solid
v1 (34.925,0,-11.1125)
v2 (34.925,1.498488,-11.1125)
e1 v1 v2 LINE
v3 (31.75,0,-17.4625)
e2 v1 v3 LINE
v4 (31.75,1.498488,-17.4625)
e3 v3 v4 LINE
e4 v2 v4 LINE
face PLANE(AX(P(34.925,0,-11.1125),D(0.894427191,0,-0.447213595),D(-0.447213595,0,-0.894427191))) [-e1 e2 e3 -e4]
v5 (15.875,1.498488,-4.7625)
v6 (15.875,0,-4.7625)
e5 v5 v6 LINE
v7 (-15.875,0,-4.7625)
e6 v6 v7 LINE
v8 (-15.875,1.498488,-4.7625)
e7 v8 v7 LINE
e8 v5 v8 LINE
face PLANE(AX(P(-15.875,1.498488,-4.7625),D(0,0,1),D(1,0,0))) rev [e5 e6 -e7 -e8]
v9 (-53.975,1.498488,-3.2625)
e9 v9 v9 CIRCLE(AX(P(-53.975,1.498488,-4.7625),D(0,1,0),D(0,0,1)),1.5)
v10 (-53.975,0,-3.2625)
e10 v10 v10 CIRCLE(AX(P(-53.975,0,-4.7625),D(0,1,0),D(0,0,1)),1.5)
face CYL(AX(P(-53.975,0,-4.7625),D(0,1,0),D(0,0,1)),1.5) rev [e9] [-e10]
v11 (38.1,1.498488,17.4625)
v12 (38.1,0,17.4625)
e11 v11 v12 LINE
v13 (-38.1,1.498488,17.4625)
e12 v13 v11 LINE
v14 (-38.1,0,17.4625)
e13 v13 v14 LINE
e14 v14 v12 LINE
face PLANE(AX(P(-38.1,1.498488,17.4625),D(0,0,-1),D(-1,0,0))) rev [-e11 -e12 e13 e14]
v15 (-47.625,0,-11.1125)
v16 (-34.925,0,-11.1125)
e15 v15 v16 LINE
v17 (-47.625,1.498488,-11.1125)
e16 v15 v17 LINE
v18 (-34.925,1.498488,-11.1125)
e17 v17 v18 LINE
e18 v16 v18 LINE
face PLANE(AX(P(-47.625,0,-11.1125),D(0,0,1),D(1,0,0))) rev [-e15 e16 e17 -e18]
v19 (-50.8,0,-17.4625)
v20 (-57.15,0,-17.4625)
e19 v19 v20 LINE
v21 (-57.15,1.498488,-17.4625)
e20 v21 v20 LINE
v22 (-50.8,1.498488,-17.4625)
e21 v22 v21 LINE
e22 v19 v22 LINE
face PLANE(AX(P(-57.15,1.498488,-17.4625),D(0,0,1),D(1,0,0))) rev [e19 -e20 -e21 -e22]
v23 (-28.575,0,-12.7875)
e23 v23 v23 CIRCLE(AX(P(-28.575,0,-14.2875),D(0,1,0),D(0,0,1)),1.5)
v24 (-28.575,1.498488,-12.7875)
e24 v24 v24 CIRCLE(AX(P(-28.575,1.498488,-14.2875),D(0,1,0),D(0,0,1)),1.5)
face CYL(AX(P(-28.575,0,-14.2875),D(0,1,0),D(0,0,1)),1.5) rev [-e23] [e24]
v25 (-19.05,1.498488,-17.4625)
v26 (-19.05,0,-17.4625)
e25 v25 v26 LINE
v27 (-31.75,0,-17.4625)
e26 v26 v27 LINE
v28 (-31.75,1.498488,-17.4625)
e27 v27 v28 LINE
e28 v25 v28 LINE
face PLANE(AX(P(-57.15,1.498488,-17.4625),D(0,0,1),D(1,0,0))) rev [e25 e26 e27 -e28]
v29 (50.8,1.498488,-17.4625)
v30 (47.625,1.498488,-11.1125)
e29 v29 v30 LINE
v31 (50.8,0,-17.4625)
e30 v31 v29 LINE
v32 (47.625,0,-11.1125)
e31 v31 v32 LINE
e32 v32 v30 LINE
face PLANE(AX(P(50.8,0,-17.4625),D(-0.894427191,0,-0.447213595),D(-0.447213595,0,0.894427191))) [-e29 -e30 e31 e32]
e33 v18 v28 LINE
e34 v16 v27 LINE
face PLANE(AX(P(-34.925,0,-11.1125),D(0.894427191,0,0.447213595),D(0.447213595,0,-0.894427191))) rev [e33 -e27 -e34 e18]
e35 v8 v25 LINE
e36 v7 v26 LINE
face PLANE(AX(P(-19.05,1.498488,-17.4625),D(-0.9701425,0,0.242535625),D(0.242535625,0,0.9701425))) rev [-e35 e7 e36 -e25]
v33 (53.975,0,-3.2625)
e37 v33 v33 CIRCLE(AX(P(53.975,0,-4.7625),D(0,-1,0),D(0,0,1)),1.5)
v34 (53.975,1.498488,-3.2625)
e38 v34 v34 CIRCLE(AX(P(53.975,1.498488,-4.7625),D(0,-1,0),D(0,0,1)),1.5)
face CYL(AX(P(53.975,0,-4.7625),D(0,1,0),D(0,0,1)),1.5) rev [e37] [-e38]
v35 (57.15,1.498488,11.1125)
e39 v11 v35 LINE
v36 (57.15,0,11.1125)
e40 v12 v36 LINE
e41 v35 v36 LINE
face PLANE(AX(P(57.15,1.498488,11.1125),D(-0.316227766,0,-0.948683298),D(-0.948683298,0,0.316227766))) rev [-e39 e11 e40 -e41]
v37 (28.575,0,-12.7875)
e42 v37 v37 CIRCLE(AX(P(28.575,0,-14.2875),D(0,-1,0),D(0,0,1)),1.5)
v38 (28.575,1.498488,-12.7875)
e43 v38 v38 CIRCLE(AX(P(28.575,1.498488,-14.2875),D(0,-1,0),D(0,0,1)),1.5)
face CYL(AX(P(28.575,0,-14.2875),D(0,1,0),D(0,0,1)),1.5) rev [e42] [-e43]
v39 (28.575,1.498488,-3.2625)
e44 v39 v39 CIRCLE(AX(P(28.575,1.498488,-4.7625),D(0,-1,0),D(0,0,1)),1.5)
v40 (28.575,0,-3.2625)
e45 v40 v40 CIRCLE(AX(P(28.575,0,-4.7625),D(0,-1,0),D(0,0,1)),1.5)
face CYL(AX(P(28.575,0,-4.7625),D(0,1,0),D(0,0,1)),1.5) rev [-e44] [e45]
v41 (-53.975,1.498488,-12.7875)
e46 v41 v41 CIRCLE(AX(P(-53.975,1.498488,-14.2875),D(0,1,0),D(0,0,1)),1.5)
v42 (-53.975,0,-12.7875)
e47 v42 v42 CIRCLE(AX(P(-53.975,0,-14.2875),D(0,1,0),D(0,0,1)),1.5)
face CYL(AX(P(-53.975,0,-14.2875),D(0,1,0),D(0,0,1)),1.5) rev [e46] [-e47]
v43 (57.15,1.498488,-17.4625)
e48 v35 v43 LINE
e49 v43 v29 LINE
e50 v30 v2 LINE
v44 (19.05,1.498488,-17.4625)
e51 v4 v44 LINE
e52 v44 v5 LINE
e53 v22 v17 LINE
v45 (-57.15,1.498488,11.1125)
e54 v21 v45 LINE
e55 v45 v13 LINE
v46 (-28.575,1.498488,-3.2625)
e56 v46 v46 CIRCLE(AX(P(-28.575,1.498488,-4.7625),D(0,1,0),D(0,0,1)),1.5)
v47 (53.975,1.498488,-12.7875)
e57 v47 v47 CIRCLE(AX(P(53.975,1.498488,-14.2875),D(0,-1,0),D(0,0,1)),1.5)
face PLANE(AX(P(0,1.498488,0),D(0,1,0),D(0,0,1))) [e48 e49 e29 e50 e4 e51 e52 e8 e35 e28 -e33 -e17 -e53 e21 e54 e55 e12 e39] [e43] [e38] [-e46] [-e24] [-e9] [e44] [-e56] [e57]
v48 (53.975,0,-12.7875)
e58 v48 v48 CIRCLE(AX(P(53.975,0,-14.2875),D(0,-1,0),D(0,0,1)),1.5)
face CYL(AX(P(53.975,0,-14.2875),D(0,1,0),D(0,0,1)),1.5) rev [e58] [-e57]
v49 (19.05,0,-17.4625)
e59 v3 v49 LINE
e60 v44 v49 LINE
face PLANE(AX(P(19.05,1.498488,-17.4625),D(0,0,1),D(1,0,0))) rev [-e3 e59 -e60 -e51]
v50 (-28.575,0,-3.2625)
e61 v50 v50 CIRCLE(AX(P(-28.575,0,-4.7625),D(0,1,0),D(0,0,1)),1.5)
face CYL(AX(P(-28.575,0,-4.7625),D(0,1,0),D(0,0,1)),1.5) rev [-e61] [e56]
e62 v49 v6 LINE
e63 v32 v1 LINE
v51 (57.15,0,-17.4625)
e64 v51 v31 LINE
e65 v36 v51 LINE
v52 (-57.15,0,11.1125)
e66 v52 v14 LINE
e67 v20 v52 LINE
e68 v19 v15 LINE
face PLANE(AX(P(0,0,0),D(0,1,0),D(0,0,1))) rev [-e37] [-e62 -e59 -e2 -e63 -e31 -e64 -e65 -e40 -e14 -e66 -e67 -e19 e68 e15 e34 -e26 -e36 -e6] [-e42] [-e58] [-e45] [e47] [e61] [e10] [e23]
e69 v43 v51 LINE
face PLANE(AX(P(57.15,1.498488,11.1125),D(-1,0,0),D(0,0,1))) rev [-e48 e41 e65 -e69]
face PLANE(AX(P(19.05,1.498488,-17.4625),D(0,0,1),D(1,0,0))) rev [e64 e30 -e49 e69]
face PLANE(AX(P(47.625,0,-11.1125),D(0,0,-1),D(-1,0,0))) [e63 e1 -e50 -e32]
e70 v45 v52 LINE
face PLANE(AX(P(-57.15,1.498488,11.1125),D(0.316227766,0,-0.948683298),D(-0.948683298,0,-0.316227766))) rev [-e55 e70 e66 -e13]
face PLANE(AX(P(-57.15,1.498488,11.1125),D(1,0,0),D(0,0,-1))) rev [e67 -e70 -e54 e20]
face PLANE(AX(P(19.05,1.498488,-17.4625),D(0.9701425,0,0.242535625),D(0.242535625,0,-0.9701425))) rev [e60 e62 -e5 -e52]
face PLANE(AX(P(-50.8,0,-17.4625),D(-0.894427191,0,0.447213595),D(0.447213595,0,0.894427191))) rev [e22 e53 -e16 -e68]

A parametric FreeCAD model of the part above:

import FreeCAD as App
import Part
import Sketcher
Q = App.Units.Quantity


def add_polygon(sketch, points):
    """Adds a closed chain of lines whose ends are joined by coincident constraints."""
    first, n = sketch.GeometryCount, len(points)
    for a, b in zip(points, points[1:] + points[:1]):
        sketch.addGeometry(Part.LineSegment(App.Vector(*a, 0), App.Vector(*b, 0)), False)
    for i in range(n):
        sketch.addConstraint(Sketcher.Constraint("Coincident", first + i, 2, first + (i + 1) % n, 1))

doc = App.newDocument("Part")
body = doc.addObject("PartDesign::Body", "Body")

# Sketch on XZ plane
sketch1 = doc.addObject("Sketcher::SketchObject", "Sketch")
body.addObject(sketch1)
sketch1.AttachmentSupport = (doc.XZ_Plane, [""])
sketch1.MapMode = "FlatFace"
add_polygon(sketch1, [(-57.15, 11.1125), (-38.1, 17.4625), (38.1, 17.4625), (57.15, 11.1125), (57.15, -17.4625), (19.05, -17.4625), (15.875, -4.7625), (-15.875, -4.7625), (-19.05, -17.4625), (-57.15, -17.4625)])  # lines 0-9
sketch1.addConstraint(Sketcher.Constraint("Horizontal", 1))
sketch1.addConstraint(Sketcher.Constraint("Vertical", 3))
sketch1.addConstraint(Sketcher.Constraint("Horizontal", 4))
sketch1.addConstraint(Sketcher.Constraint("Horizontal", 6))
sketch1.addConstraint(Sketcher.Constraint("Horizontal", 8))
sketch1.addConstraint(Sketcher.Constraint("Vertical", 9))
sketch1.addConstraint(Sketcher.Constraint("Symmetric", 4, 2, 7, 2, -2))
sketch1.addConstraint(Sketcher.Constraint("Symmetric", 2, 2, 9, 2, -2))
sketch1.addConstraint(Sketcher.Constraint("Equal", 0, 2))
sketch1.addConstraint(Sketcher.Constraint("Equal", 5, 7))
sketch1.addConstraint(Sketcher.Constraint("DistanceX", 1, 1, 1, 2, Q("3 in")))
sketch1.addConstraint(Sketcher.Constraint("DistanceX", 4, 2, 4, 1, Q("1.5 in")))
sketch1.addConstraint(Sketcher.Constraint("DistanceX", 8, 2, 4, 2, Q("3 in")))
sketch1.addConstraint(Sketcher.Constraint("DistanceX", 6, 2, 6, 1, Q("1.25 in")))
sketch1.addConstraint(Sketcher.Constraint("DistanceY", 4, 2, 5, 2, Q("0.5 in")))
sketch1.addConstraint(Sketcher.Constraint("DistanceY", 3, 2, 3, 1, Q("1.125 in")))
sketch1.addConstraint(Sketcher.Constraint("DistanceY", 2, 2, 1, 2, Q("0.25 in")))
sketch1.addConstraint(Sketcher.Constraint("DistanceY", -1, 1, 0, 2, Q("0.6875 in")))
pad1 = doc.addObject("PartDesign::Pad", "Pad")
body.addObject(pad1)
pad1.Profile = sketch1
pad1.Length = 1.498488
pad1.Reversed = True

# Sketch on XZ plane
sketch2 = doc.addObject("Sketcher::SketchObject", "Sketch001")
body.addObject(sketch2)
sketch2.AttachmentSupport = (doc.XZ_Plane, [""])
sketch2.MapMode = "FlatFace"
sketch2.AttachmentOffset = App.Placement(App.Vector(0, 0, -1.498488), App.Rotation())
sketch2.addGeometry(Part.Circle(App.Vector(-53.975, -14.2875, 0), App.Vector(0, 0, 1), 1.5), False)
sketch2.addGeometry(Part.Circle(App.Vector(-28.575, -14.2875, 0), App.Vector(0, 0, 1), 1.5), False)
sketch2.addConstraint(Sketcher.Constraint("Equal", 0, 1))
sketch2.addConstraint(Sketcher.Constraint("Horizontal", 0, 3, 1, 3))
sketch2.addConstraint(Sketcher.Constraint("DistanceX", 0, 3, 1, 3, Q("1 in")))
sketch2.addConstraint(Sketcher.Constraint("Diameter", 0, 3.0))
sketch2.addConstraint(Sketcher.Constraint("DistanceX", 0, 3, -1, 1, Q("2.125 in")))
sketch2.addConstraint(Sketcher.Constraint("DistanceY", 0, 3, -1, 1, Q("0.5625 in")))
pocket1 = doc.addObject("PartDesign::Pocket", "Pocket")
body.addObject(pocket1)
pocket1.Profile = sketch2
pocket1.Type = "ThroughAll"
pocket1.Reversed = True

# Sketch on XZ plane
sketch3 = doc.addObject("Sketcher::SketchObject", "Sketch002")
body.addObject(sketch3)
sketch3.AttachmentSupport = (doc.XZ_Plane, [""])
sketch3.MapMode = "FlatFace"
sketch3.AttachmentOffset = App.Placement(App.Vector(0, 0, -1.498488), App.Rotation())
add_polygon(sketch3, [(-50.8, -17.4625), (-47.625, -11.1125), (-34.925, -11.1125), (-31.75, -17.4625)])  # lines 0-3
sketch3.addConstraint(Sketcher.Constraint("Horizontal", 1))
sketch3.addConstraint(Sketcher.Constraint("Horizontal", 3))
sketch3.addConstraint(Sketcher.Constraint("Equal", 0, 2))
sketch3.addConstraint(Sketcher.Constraint("DistanceX", 1, 1, 1, 2, Q("0.5 in")))
sketch3.addConstraint(Sketcher.Constraint("DistanceX", 3, 2, -1, 1, Q("2 in")))
sketch3.addConstraint(Sketcher.Constraint("DistanceX", 3, 2, 3, 1, Q("0.75 in")))
sketch3.addConstraint(Sketcher.Constraint("DistanceY", 2, 2, 1, 2, Q("0.25 in")))
sketch3.addConstraint(Sketcher.Constraint("DistanceY", 0, 2, -1, 1, Q("0.4375 in")))
pocket2 = doc.addObject("PartDesign::Pocket", "Pocket001")
body.addObject(pocket2)
pocket2.Profile = sketch3
pocket2.Type = "ThroughAll"
pocket2.Reversed = True
doc.recompute()

linearpattern = doc.addObject("PartDesign::LinearPattern", "LinearPattern")
body.addObject(linearpattern)
linearpattern.Originals = [pocket1]
linearpattern.Direction = (doc.Z_Axis, [""])
linearpattern.Mode = "offset"
linearpattern.Offset = Q("0.375 in")
linearpattern.Occurrences = 2
body.Tip = linearpattern
doc.recompute()

mirrored = doc.addObject("PartDesign::Mirrored", "Mirrored")
body.addObject(mirrored)
mirrored.Originals = [pocket2, pocket1]
mirrored.MirrorPlane = (doc.YZ_Plane, [""])
body.Tip = mirrored

# Sketch on XZ plane
sketch4 = doc.addObject("Sketcher::SketchObject", "Sketch003")
body.addObject(sketch4)
sketch4.AttachmentSupport = (doc.XZ_Plane, [""])
sketch4.MapMode = "FlatFace"
sketch4.AttachmentOffset = App.Placement(App.Vector(0, 0, -1.498488), App.Rotation())
sketch4.addGeometry(Part.Circle(App.Vector(53.975, -4.7625, 0), App.Vector(0, 0, 1), 1.5), False)
sketch4.addGeometry(Part.Circle(App.Vector(28.575, -4.7625, 0), App.Vector(0, 0, 1), 1.5), False)
sketch4.addConstraint(Sketcher.Constraint("Equal", 0, 1))
sketch4.addConstraint(Sketcher.Constraint("Horizontal", 0, 3, 1, 3))
sketch4.addConstraint(Sketcher.Constraint("DistanceX", 1, 3, 0, 3, Q("1 in")))
sketch4.addConstraint(Sketcher.Constraint("Diameter", 0, 3.0))
sketch4.addConstraint(Sketcher.Constraint("DistanceX", -1, 1, 0, 3, Q("2.125 in")))
sketch4.addConstraint(Sketcher.Constraint("DistanceY", 0, 3, -1, 1, Q("0.1875 in")))
pocket3 = doc.addObject("PartDesign::Pocket", "Pocket002")
body.addObject(pocket3)
pocket3.Profile = sketch4
pocket3.Type = "ThroughAll"
pocket3.Reversed = True

doc.recompute()
